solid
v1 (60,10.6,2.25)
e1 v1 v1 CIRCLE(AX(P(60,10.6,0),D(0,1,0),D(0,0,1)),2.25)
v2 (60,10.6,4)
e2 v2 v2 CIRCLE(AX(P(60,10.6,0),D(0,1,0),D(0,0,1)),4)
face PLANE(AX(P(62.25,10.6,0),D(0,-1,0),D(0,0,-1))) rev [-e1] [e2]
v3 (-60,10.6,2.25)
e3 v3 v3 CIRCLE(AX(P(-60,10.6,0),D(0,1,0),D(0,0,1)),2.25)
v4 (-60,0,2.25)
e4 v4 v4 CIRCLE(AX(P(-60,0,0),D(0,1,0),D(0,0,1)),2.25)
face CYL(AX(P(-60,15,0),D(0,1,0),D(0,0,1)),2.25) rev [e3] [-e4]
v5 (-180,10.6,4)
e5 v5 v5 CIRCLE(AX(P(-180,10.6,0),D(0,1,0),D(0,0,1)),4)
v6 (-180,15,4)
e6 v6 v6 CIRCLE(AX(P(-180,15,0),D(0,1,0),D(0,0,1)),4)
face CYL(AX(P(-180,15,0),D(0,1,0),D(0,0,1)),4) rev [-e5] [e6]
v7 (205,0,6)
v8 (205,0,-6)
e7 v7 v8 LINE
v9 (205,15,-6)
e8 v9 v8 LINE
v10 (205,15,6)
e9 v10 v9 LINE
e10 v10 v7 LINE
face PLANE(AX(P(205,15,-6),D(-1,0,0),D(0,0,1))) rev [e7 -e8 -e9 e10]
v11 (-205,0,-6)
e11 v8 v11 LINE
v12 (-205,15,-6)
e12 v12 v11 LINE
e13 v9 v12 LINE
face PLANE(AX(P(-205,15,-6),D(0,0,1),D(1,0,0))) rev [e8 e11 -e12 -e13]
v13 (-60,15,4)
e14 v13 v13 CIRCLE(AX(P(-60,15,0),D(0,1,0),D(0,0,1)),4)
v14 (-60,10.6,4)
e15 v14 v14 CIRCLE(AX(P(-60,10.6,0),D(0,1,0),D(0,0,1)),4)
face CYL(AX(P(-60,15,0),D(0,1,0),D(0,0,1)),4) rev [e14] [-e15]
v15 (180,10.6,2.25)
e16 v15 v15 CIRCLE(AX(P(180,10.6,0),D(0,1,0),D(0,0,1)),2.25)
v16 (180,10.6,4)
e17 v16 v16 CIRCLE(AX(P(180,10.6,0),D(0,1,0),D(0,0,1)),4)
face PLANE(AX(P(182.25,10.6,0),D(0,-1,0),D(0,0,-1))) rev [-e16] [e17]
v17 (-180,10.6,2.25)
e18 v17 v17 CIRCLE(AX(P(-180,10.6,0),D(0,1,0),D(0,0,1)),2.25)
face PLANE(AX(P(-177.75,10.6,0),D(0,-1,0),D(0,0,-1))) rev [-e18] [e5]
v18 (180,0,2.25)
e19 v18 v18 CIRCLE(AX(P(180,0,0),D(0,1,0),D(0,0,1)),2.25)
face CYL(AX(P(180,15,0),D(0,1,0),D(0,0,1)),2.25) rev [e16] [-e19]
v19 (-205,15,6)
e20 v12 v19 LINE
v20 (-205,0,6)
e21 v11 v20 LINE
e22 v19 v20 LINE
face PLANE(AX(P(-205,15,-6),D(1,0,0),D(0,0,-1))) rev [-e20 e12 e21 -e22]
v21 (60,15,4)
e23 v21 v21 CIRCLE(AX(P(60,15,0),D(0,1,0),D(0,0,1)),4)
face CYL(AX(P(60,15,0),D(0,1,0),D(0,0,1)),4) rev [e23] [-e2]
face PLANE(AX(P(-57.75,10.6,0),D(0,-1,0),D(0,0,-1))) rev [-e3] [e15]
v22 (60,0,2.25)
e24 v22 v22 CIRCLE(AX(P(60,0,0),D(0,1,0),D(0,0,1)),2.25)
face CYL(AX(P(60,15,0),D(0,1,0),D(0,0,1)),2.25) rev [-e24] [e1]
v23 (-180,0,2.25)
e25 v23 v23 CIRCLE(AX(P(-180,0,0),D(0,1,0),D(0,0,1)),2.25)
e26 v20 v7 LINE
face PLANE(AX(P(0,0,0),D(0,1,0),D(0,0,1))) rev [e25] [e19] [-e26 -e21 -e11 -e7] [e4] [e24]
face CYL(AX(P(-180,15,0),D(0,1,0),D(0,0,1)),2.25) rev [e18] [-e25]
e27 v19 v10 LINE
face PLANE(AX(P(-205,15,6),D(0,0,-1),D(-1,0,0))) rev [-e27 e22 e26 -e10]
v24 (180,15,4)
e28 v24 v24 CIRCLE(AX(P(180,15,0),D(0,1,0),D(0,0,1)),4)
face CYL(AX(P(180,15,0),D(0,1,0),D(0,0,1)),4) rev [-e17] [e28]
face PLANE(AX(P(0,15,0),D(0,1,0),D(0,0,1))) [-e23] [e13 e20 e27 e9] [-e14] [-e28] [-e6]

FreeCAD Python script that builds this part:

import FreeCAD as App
import Part
import Sketcher
from FreeCAD import Vector
Q = App.Units.Quantity


def add_polygon(sketch, points):
    """Adds a closed chain of lines whose ends are joined by coincident constraints."""
    first, n = sketch.GeometryCount, len(points)
    for a, b in zip(points, points[1:] + points[:1]):
        sketch.addGeometry(Part.LineSegment(App.Vector(*a, 0), App.Vector(*b, 0)), False)
    for i in range(n):
        sketch.addConstraint(Sketcher.Constraint("Coincident", first + i, 2, first + (i + 1) % n, 1))

doc = App.newDocument("Part")
body = doc.addObject("PartDesign::Body", "Body")

# Sketch on XZ plane
sketch1 = doc.addObject("Sketcher::SketchObject", "Sketch")
body.addObject(sketch1)
sketch1.AttachmentSupport = (doc.XZ_Plane, [""])
sketch1.MapMode = "FlatFace"
add_polygon(sketch1, [(-205, -6), (-205, 6), (205, 6), (205, -6)])  # lines 0-3
sketch1.addConstraint(Sketcher.Constraint("Vertical", 0))
sketch1.addConstraint(Sketcher.Constraint("Horizontal", 1))
sketch1.addConstraint(Sketcher.Constraint("Vertical", 2))
sketch1.addConstraint(Sketcher.Constraint("Horizontal", 3))
sketch1.addConstraint(Sketcher.Constraint("Symmetric", 0, 2, 2, 2, -1, 1))
sketch1.addConstraint(Sketcher.Constraint("DistanceX", 1, 1, 1, 2, Q("410 mm")))
sketch1.addConstraint(Sketcher.Constraint("DistanceY", 0, 1, 0, 2, Q("12 mm")))
pad1 = doc.addObject("PartDesign::Pad", "Pad")
body.addObject(pad1)
pad1.Profile = sketch1
pad1.Length = 15
pad1.Reversed = True

# Sketch on XZ plane
sketch2 = doc.addObject("Sketcher::SketchObject", "Sketch001")
body.addObject(sketch2)
sketch2.AttachmentSupport = (doc.XZ_Plane, [""])
sketch2.MapMode = "FlatFace"
sketch2.AttachmentOffset = App.Placement(Vector(0, 0, -15), App.Rotation())
sketch2.addGeometry(Part.Circle(Vector(60, 0, 0), Vector(0, 0, 1), 2.25), False)
sketch2.addGeometry(Part.Circle(Vector(-60, 0, 0), Vector(0, 0, 1), 2.25), False)
sketch2.addGeometry(Part.Circle(Vector(-180, 0, 0), Vector(0, 0, 1), 2.25), False)
sketch2.addGeometry(Part.Circle(Vector(180, 0, 0), Vector(0, 0, 1), 2.25), False)
sketch2.addConstraint(Sketcher.Constraint("Equal", 0, 1))
sketch2.addConstraint(Sketcher.Constraint("Equal", 1, 2))
sketch2.addConstraint(Sketcher.Constraint("Equal", 2, 3))
sketch2.addConstraint(Sketcher.Constraint("Symmetric", 0, 3, 1, 3, -1, 1))
sketch2.addConstraint(Sketcher.Constraint("Symmetric", 2, 3, 3, 3, -1, 1))
sketch2.addConstraint(Sketcher.Constraint("PointOnObject", 0, 3, -1))
sketch2.addConstraint(Sketcher.Constraint("PointOnObject", 2, 3, -1))
sketch2.addConstraint(Sketcher.Constraint("Diameter", 0, Q("4.5 mm")))
sketch2.addConstraint(Sketcher.Constraint("DistanceX", -1, 1, 0, 3, Q("60 mm")))
sketch2.addConstraint(Sketcher.Constraint("DistanceX", 2, 3, -1, 1, Q("180 mm")))
doc.recompute()
hole = doc.addObject("PartDesign::Hole", "Hole")
body.addObject(hole)
hole.Profile = sketch2
hole.ThreadType = "None"
hole.Diameter = 4.5
hole.DepthType = "ThroughAll"
hole.HoleCutType = "Counterbore"
hole.HoleCutDiameter = 8
hole.HoleCutDepth = 4.4
hole.Reversed = True

doc.recompute()
